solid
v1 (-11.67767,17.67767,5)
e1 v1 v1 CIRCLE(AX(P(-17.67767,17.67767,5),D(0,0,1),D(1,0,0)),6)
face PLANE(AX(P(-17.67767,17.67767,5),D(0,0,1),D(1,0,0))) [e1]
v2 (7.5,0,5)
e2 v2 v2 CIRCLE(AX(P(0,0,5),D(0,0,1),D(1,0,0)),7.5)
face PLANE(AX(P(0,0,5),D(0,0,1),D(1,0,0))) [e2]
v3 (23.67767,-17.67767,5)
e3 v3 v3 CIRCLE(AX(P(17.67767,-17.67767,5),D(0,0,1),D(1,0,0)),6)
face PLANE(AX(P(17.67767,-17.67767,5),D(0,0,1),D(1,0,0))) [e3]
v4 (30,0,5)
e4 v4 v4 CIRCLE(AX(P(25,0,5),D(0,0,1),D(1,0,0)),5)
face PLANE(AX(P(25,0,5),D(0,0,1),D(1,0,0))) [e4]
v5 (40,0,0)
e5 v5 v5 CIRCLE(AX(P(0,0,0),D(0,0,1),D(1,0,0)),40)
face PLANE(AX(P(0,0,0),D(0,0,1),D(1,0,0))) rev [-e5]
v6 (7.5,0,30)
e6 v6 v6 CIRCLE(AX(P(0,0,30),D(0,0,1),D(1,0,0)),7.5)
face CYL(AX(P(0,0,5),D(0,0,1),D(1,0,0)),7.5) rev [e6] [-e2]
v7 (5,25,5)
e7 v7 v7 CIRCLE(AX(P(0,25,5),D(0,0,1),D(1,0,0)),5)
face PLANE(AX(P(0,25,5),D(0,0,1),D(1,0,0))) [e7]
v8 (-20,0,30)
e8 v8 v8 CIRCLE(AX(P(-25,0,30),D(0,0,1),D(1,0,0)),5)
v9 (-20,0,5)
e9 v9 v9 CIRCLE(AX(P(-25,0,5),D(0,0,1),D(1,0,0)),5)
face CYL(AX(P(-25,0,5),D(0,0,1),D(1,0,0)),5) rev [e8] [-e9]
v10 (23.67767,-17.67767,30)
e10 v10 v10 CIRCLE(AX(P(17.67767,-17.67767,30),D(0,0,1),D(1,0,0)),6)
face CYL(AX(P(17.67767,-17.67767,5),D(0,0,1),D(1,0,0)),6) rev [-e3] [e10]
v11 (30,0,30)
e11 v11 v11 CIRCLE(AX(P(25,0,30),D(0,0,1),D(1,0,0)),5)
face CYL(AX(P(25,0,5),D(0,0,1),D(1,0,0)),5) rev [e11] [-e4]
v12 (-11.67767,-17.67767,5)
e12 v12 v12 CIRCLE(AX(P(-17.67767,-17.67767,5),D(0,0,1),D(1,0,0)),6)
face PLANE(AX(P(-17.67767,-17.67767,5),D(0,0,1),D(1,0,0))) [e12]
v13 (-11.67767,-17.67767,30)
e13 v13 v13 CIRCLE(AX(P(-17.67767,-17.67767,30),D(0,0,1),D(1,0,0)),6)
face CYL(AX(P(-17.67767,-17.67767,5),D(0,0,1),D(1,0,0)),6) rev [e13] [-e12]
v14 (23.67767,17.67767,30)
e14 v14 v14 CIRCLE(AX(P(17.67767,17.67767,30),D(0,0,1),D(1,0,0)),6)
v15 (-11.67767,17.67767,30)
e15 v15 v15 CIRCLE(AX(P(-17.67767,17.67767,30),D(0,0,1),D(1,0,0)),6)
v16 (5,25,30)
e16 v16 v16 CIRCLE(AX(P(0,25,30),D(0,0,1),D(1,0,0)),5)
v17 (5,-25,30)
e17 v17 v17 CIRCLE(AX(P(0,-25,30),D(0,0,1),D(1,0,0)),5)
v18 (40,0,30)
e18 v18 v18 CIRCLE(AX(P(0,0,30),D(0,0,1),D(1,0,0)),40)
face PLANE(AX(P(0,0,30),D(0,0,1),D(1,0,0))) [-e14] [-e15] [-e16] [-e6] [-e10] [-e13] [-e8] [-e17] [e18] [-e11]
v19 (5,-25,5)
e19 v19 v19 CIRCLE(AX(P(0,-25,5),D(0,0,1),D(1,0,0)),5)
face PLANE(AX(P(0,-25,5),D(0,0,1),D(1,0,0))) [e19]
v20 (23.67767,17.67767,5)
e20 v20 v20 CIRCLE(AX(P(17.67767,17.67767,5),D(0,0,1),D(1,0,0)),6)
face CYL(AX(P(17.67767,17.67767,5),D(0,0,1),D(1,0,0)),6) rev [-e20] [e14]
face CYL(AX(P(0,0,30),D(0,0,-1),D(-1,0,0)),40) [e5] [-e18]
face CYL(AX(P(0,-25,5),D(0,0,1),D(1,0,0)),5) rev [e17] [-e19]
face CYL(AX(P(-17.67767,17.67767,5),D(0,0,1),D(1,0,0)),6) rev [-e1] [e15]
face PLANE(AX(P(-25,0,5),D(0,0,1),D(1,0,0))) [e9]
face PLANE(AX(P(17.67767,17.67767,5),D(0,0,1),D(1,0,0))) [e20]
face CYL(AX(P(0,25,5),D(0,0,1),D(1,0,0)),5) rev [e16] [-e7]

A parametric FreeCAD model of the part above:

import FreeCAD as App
import Part
import Sketcher

V = App.Vector

doc = App.newDocument("Part")
params = doc.addObject("Spreadsheet::Sheet", "Params")
for row, (alias, value) in enumerate([
    ("sketch1_diameter", "80 mm"),
    ("pad1_length", "30 mm"),
    ("sketch2_diameter", "10 mm"),
    ("pocket1_length", "25 mm"),
    ("sketch3_diameter", "12 mm"),
    ("pocket2_length", "25 mm"),
    ("sketch4_diameter", "15 mm"),
    ("pocket3_length", "25 mm"),
], start=1):
    params.set(f"A{row}", alias)
    params.set(f"B{row}", "=" + value)
    params.setAlias(f"B{row}", alias)

body = doc.addObject("PartDesign::Body", "Body")

# Sketch on XY plane
sketch1 = doc.addObject("Sketcher::SketchObject", "Sketch")
body.addObject(sketch1)
sketch1.AttachmentSupport = (doc.XY_Plane, [""])
sketch1.MapMode = "FlatFace"
sketch1.addGeometry(Part.Circle(V(0, 0, 0), V(0, 0, 1), 40), False)
sketch1.addConstraint([
    Sketcher.Constraint("Coincident", 0, 3, -1, 1),
    Sketcher.Constraint("Diameter", 0, 80.0),
])
sketch1.setExpression("Constraints[1]", "Params.sketch1_diameter")
pad1 = doc.addObject("PartDesign::Pad", "Pad")
body.addObject(pad1)
pad1.Profile = sketch1
pad1.setExpression("Length", "Params.pad1_length")

# Sketch on XY plane
sketch2 = doc.addObject("Sketcher::SketchObject", "Sketch001")
body.addObject(sketch2)
sketch2.AttachmentSupport = (doc.XY_Plane, [""])
sketch2.MapMode = "FlatFace"
sketch2.AttachmentOffset = App.Placement(V(0, 0, 30), App.Rotation())
sketch2.addGeometry([
    Part.Circle(V(25, 0, 0), V(0, 0, 1), 5),
    Part.Circle(V(0, -25, 0), V(0, 0, 1), 5),
    Part.Circle(V(-25, 0, 0), V(0, 0, 1), 5),
    Part.Circle(V(0, 25, 0), V(0, 0, 1), 5),
], False)
sketch2.addConstraint([
    Sketcher.Constraint("Equal", 0, 1),
    Sketcher.Constraint("Equal", 1, 2),
    Sketcher.Constraint("Equal", 2, 3),
    Sketcher.Constraint("Symmetric", 0, 3, 2, 3, -1, 1),
    Sketcher.Constraint("Symmetric", 1, 3, 3, 3, -1, 1),
    Sketcher.Constraint("PointOnObject", 0, 3, -1),
    Sketcher.Constraint("PointOnObject", 1, 3, -2),
    Sketcher.Constraint("Diameter", 0, 10.0),
    Sketcher.Constraint("DistanceX", -1, 1, 0, 3, 25.0),
    Sketcher.Constraint("DistanceY", 1, 3, -1, 1, 25.0),
])
sketch2.setExpression("Constraints[7]", "Params.sketch2_diameter")
pocket1 = doc.addObject("PartDesign::Pocket", "Pocket")
body.addObject(pocket1)
pocket1.Profile = sketch2
pocket1.setExpression("Length", "Params.pocket1_length")

# Sketch on XY plane
sketch3 = doc.addObject("Sketcher::SketchObject", "Sketch002")
body.addObject(sketch3)
sketch3.AttachmentSupport = (doc.XY_Plane, [""])
sketch3.MapMode = "FlatFace"
sketch3.AttachmentOffset = App.Placement(V(0, 0, 30), App.Rotation())
sketch3.addGeometry([
    Part.Circle(V(18, 18, 0), V(0, 0, 1), 6),
    Part.Circle(V(18, -18, 0), V(0, 0, 1), 6),
    Part.Circle(V(-18, -18, 0), V(0, 0, 1), 6),
    Part.Circle(V(-18, 18, 0), V(0, 0, 1), 6),
], False)
sketch3.addConstraint([
    Sketcher.Constraint("Equal", 0, 1),
    Sketcher.Constraint("Equal", 1, 2),
    Sketcher.Constraint("Equal", 2, 3),
    Sketcher.Constraint("Symmetric", 0, 3, 2, 3, -1, 1),
    Sketcher.Constraint("Symmetric", 1, 3, 3, 3, -1, 1),
    Sketcher.Constraint("Symmetric", 1, 3, 2, 3, -2),
    Sketcher.Constraint("Diameter", 0, 12.0),
    Sketcher.Constraint("DistanceX", -1, 1, 0, 3, 17.67767),
    Sketcher.Constraint("DistanceY", -1, 1, 0, 3, 17.67767),
])
sketch3.setExpression("Constraints[6]", "Params.sketch3_diameter")
pocket2 = doc.addObject("PartDesign::Pocket", "Pocket001")
body.addObject(pocket2)
pocket2.Profile = sketch3
pocket2.setExpression("Length", "Params.pocket2_length")

# Sketch on XY plane
sketch4 = doc.addObject("Sketcher::SketchObject", "Sketch003")
body.addObject(sketch4)
sketch4.AttachmentSupport = (doc.XY_Plane, [""])
sketch4.MapMode = "FlatFace"
sketch4.AttachmentOffset = App.Placement(V(0, 0, 30), App.Rotation())
sketch4.addGeometry(Part.Circle(V(0, 0, 0), V(0, 0, 1), 8), False)
sketch4.addConstraint([
    Sketcher.Constraint("Coincident", 0, 3, -1, 1),
    Sketcher.Constraint("Diameter", 0, 15.0),
])
sketch4.setExpression("Constraints[1]", "Params.sketch4_diameter")
pocket3 = doc.addObject("PartDesign::Pocket", "Pocket002")
body.addObject(pocket3)
pocket3.Profile = sketch4
pocket3.setExpression("Length", "Params.pocket3_length")

doc.recompute()
